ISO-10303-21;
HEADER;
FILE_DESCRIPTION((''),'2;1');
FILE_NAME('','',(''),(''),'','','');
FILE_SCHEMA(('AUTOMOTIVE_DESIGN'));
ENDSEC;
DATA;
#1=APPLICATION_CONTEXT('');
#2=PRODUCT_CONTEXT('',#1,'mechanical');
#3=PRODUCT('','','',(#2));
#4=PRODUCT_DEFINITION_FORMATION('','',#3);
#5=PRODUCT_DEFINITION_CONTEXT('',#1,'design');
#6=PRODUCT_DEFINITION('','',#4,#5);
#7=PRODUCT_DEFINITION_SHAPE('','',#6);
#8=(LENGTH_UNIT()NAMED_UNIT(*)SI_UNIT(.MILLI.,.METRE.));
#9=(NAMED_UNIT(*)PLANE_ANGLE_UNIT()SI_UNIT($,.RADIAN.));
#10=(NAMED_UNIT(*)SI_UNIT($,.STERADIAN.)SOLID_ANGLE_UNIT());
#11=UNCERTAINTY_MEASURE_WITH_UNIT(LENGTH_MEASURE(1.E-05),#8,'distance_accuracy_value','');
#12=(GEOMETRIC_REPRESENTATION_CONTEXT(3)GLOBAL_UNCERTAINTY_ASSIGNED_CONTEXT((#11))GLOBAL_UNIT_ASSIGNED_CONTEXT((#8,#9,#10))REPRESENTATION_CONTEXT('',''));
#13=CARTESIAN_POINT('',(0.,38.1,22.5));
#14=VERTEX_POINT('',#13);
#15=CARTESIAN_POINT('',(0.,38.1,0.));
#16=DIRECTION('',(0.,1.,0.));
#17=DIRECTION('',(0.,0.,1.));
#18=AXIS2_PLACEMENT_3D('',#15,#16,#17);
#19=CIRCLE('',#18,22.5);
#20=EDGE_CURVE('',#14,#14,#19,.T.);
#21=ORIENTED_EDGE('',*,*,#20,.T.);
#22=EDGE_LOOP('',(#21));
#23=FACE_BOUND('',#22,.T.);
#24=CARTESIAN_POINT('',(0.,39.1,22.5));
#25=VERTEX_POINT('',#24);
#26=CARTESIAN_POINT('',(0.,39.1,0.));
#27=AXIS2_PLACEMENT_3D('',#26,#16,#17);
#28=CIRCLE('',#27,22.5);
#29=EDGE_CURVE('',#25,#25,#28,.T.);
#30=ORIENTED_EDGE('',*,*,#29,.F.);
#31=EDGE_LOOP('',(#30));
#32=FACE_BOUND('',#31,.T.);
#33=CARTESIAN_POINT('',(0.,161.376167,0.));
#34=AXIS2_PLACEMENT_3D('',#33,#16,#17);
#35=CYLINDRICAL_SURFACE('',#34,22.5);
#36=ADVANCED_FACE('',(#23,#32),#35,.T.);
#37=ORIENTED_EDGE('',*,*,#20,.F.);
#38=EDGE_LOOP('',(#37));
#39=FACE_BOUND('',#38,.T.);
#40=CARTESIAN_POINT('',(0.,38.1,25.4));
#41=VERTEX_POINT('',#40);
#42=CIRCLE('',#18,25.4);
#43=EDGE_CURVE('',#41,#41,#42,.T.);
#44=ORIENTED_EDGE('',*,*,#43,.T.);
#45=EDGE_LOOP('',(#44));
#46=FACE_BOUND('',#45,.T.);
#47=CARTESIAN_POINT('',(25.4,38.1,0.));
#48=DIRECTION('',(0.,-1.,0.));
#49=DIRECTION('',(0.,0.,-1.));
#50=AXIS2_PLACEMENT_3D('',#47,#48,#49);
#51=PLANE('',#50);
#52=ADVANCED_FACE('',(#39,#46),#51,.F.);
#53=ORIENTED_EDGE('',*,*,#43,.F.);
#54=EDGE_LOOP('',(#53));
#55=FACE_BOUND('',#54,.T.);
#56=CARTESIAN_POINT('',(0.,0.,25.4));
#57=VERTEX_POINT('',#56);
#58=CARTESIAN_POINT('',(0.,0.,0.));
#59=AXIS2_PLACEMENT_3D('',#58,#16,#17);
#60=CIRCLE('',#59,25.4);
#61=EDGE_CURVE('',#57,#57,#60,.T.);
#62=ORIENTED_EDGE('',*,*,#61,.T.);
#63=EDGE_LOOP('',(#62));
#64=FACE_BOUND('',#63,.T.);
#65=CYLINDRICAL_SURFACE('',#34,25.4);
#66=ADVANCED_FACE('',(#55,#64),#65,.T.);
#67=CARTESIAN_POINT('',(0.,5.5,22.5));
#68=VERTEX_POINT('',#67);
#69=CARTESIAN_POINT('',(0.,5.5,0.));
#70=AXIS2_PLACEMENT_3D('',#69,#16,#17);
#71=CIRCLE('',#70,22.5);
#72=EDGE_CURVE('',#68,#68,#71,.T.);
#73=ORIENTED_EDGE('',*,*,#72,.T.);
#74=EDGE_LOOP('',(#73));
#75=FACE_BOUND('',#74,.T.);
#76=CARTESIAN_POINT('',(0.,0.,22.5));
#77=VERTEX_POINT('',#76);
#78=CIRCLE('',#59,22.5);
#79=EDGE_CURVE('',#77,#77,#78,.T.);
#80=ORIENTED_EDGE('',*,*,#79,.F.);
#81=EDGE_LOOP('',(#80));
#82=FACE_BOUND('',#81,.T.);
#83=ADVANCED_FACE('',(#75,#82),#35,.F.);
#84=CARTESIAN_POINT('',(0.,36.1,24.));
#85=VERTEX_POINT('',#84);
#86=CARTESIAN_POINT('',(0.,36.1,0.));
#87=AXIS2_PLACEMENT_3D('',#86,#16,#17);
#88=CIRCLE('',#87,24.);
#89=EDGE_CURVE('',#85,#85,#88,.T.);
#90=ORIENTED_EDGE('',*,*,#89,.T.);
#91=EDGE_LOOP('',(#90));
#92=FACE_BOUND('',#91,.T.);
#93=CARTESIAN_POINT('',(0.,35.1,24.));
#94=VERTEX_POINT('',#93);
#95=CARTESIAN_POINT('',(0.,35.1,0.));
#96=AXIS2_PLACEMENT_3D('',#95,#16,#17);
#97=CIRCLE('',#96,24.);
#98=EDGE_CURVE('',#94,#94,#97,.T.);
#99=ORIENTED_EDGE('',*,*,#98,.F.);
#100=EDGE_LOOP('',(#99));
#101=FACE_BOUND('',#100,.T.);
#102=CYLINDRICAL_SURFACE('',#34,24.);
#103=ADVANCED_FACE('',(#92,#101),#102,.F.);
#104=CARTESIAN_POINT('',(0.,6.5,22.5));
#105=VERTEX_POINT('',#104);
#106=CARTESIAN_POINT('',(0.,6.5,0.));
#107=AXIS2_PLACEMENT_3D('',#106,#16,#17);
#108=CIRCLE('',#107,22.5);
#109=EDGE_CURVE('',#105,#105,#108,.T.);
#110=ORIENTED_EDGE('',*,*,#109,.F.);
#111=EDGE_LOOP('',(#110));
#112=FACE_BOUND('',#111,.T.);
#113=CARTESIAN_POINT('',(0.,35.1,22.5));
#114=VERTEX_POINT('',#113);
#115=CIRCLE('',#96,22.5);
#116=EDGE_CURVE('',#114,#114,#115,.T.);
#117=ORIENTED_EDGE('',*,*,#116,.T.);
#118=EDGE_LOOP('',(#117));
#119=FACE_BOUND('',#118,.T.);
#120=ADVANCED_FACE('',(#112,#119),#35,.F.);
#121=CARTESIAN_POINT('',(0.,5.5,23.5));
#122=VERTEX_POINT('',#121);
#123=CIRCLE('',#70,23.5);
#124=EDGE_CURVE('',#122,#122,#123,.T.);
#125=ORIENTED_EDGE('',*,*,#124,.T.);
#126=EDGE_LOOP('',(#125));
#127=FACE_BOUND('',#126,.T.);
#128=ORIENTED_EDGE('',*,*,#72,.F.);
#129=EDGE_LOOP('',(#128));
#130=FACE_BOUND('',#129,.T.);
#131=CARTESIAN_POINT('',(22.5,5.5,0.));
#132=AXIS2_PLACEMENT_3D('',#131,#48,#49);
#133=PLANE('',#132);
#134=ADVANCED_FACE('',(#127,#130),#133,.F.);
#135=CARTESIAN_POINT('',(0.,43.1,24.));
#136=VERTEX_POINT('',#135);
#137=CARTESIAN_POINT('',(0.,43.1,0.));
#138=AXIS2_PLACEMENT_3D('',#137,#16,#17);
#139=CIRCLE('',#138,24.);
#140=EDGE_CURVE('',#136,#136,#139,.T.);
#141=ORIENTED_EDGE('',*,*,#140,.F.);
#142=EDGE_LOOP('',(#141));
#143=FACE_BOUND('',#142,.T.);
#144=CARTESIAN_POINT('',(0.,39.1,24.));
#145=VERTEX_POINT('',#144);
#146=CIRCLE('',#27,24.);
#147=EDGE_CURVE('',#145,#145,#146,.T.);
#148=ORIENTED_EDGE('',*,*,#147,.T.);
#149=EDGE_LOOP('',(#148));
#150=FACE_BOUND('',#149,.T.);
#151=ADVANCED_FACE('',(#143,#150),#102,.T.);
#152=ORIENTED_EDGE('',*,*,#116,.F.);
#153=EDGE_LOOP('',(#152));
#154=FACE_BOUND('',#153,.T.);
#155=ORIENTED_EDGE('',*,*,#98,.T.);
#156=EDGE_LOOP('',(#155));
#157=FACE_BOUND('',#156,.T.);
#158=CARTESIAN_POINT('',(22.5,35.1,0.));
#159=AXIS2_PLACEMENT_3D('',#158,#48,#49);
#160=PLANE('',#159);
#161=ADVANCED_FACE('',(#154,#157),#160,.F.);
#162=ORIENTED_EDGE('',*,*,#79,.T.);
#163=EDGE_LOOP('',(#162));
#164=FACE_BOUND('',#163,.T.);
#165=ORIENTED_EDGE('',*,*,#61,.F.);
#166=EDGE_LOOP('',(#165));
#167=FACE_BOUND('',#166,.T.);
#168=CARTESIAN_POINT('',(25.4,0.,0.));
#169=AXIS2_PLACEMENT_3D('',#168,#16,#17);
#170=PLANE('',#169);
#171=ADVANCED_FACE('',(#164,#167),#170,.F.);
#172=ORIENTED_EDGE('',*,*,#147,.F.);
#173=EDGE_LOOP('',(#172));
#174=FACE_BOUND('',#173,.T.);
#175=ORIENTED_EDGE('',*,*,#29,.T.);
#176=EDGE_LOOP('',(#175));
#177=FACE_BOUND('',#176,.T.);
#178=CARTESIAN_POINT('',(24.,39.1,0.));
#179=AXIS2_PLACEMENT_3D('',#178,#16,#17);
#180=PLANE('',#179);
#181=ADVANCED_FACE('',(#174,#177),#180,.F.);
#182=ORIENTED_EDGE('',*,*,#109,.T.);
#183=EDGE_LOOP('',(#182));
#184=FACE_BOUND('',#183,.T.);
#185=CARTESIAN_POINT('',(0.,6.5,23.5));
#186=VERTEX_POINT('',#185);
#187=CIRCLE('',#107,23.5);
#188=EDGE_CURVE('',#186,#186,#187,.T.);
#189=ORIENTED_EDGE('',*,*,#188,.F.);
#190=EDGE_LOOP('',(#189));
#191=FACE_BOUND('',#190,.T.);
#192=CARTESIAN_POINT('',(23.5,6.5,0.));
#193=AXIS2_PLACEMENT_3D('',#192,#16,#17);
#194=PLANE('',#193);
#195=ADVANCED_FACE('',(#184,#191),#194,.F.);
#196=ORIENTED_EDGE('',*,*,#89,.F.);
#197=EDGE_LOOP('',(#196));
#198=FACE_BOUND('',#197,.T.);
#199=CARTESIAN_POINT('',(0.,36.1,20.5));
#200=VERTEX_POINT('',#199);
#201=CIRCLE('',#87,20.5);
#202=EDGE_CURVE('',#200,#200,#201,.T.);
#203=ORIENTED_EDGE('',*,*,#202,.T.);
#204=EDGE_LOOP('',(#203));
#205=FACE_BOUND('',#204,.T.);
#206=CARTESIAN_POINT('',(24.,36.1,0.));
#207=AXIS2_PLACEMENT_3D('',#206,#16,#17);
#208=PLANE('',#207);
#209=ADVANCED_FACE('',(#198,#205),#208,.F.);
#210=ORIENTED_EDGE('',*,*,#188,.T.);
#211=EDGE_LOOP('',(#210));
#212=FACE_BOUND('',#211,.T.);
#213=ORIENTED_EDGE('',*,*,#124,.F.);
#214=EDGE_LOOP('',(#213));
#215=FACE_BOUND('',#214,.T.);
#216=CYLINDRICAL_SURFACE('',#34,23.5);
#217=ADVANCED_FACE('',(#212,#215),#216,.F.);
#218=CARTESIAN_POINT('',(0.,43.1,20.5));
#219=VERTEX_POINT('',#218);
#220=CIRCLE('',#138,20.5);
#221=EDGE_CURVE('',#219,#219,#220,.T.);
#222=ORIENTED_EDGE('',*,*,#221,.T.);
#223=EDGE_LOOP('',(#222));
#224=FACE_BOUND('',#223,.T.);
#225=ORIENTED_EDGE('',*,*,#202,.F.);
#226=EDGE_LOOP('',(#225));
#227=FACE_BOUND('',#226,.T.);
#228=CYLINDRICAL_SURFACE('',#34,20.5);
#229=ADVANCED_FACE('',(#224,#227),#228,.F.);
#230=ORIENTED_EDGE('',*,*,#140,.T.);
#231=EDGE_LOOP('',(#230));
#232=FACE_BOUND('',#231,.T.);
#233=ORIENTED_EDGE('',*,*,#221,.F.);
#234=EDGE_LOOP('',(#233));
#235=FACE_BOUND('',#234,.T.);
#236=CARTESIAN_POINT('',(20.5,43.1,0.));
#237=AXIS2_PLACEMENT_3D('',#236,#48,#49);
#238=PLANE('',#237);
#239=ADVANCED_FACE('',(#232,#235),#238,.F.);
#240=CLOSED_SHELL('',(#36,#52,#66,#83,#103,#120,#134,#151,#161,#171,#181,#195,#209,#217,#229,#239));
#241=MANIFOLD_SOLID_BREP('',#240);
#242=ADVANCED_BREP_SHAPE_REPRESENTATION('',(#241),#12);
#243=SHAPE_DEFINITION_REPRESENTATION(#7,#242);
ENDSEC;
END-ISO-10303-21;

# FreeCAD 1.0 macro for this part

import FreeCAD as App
import Part
import Sketcher
Q = App.Units.Quantity


def add_polygon(sketch, points):
    """Adds a closed chain of lines whose ends are joined by coincident constraints."""
    first, n = sketch.GeometryCount, len(points)
    for a, b in zip(points, points[1:] + points[:1]):
        sketch.addGeometry(Part.LineSegment(App.Vector(*a, 0), App.Vector(*b, 0)), False)
    for i in range(n):
        sketch.addConstraint(Sketcher.Constraint("Coincident", first + i, 2, first + (i + 1) % n, 1))

doc = App.newDocument("Part")
body = doc.addObject("PartDesign::Body", "Body")

# Sketch on XY plane
sketch1 = body.newObject("Sketcher::SketchObject", "Sketch")
sketch1.AttachmentSupport = (doc.getObject("XY_Plane"), [""])
sketch1.MapMode = "FlatFace"
add_polygon(sketch1, [(24, 35.1), (22.5, 35.1), (22.5, 6.5), (23.5, 6.5), (23.5, 5.5), (22.5, 5.5), (22.5, 0), (25.4, 0), (25.4, 38.1), (22.5, 38.1), (22.5, 39.1), (24, 39.1), (24, 43.1), (20.5, 43.1), (20.5, 36.1), (24, 36.1)])  # lines 0-15
sketch1.addConstraint([
    Sketcher.Constraint("Horizontal", 0),
    Sketcher.Constraint("Vertical", 1),
    Sketcher.Constraint("Horizontal", 2),
    Sketcher.Constraint("Vertical", 3),
    Sketcher.Constraint("Horizontal", 4),
    Sketcher.Constraint("Vertical", 5),
    Sketcher.Constraint("Horizontal", 6),
    Sketcher.Constraint("Vertical", 7),
    Sketcher.Constraint("Horizontal", 8),
    Sketcher.Constraint("Vertical", 9),
    Sketcher.Constraint("Horizontal", 10),
    Sketcher.Constraint("Vertical", 11),
    Sketcher.Constraint("Horizontal", 12),
    Sketcher.Constraint("Vertical", 13),
    Sketcher.Constraint("Horizontal", 14),
    Sketcher.Constraint("Vertical", 15),
    Sketcher.Constraint("PointOnObject", 5, 2, -1),
    Sketcher.Constraint("Vertical", 1, 2, 4, 2),
    Sketcher.Constraint("Vertical", 5, 2, 8, 2),
    Sketcher.Constraint("Vertical", 11, 2, 14, 2),
    Sketcher.Constraint("Equal", 4, 3),
    Sketcher.Constraint("Equal", 3, 9),
    Sketcher.Constraint("Equal", 9, 15),
    Sketcher.Constraint("DistanceX", 2, 1, 2, 2, Q("1 mm")),
    Sketcher.Constraint("DistanceY", 11, 1, 11, 2, Q("4 mm")),
    Sketcher.Constraint("DistanceY", 13, 2, 13, 1, Q("7 mm")),
    Sketcher.Constraint("DistanceX", 0, 2, 0, 1, Q("1.5 mm")),
    Sketcher.Constraint("DistanceX", 6, 1, 6, 2, Q("2.9 mm")),
    Sketcher.Constraint("DistanceX", 12, 2, 12, 1, Q("3.5 mm")),
    Sketcher.Constraint("DistanceY", 1, 2, 1, 1, Q("28.6 mm")),
    Sketcher.Constraint("DistanceY", 5, 2, 5, 1, Q("5.5 mm")),
    Sketcher.Constraint("DistanceX", -1, 1, 10, 2, Q("24 mm")),
])
revolution = body.newObject("PartDesign::Revolution", "Revolution")
revolution.Profile = sketch1
revolution.ReferenceAxis = (sketch1, ["V_Axis"])
revolution.Angle = 360

doc.recompute()
